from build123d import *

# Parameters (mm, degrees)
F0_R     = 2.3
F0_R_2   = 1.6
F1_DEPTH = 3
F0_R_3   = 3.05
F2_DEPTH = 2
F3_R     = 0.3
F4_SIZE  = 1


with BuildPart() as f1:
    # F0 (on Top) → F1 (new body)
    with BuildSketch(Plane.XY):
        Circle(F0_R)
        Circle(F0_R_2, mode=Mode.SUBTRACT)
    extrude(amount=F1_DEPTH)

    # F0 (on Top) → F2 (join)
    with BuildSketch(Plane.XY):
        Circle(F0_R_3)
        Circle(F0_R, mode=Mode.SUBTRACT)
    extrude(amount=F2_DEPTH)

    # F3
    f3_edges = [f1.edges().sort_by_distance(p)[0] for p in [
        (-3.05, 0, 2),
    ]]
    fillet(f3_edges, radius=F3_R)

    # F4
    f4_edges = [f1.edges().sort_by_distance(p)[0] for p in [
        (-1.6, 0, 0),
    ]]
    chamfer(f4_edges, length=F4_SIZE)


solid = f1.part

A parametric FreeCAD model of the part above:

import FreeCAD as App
import Part
import Sketcher
Q = App.Units.Quantity


def edges_at(feature, points):
    """Names of the edges that pass closest to the given points."""
    edges = feature.Shape.Edges
    near = lambda p: min(range(len(edges)), key=lambda i: edges[i].distToShape(Part.Vertex(*p))[0])
    return sorted({f"Edge{near(p) + 1}" for p in points})

doc = App.newDocument("Part")
body = doc.addObject("PartDesign::Body", "Body")

# Sketch on XY plane
sketch1 = body.newObject("Sketcher::SketchObject", "Sketch")
sketch1.AttachmentSupport = (doc.getObject("XY_Plane"), [""])
sketch1.MapMode = "FlatFace"
sketch1.addGeometry([
    Part.Circle(App.Vector(0, 0, 0), App.Vector(0, 0, 1), 2.3),
    Part.Circle(App.Vector(0, 0, 0), App.Vector(0, 0, 1), 1.6),
], False)
sketch1.addConstraint([
    Sketcher.Constraint("Coincident", 0, 3, -1, 1),
    Sketcher.Constraint("Coincident", 1, 3, -1, 1),
    Sketcher.Constraint("Diameter", 0, Q("4.6 mm")),
    Sketcher.Constraint("Diameter", 1, Q("3.2 mm")),
])
pad1 = body.newObject("PartDesign::Pad", "Pad")
pad1.Profile = sketch1
pad1.Length = 3

# Sketch on XY plane
sketch2 = body.newObject("Sketcher::SketchObject", "Sketch001")
sketch2.AttachmentSupport = (doc.getObject("XY_Plane"), [""])
sketch2.MapMode = "FlatFace"
sketch2.addGeometry([
    Part.Circle(App.Vector(0, 0, 0), App.Vector(0, 0, 1), 3),
    Part.Circle(App.Vector(0, 0, 0), App.Vector(0, 0, 1), 2.3),
], False)
sketch2.addConstraint([
    Sketcher.Constraint("Coincident", 0, 3, -1, 1),
    Sketcher.Constraint("Coincident", 1, 3, -1, 1),
    Sketcher.Constraint("Diameter", 0, Q("6.1 mm")),
    Sketcher.Constraint("Diameter", 1, Q("4.6 mm")),
])
pad2 = body.newObject("PartDesign::Pad", "Pad001")
pad2.Profile = sketch2
pad2.Length = 2
doc.recompute()

fillet = body.newObject("PartDesign::Fillet", "Fillet")
fillet.Base = (pad2, edges_at(pad2, [(-3.05, 0, 2)]))
fillet.Radius = 0.3
doc.recompute()

chamfer = body.newObject("PartDesign::Chamfer", "Chamfer")
chamfer.Base = (fillet, edges_at(fillet, [(-1.6, 0, 0)]))
chamfer.Size = 1

doc.recompute()
